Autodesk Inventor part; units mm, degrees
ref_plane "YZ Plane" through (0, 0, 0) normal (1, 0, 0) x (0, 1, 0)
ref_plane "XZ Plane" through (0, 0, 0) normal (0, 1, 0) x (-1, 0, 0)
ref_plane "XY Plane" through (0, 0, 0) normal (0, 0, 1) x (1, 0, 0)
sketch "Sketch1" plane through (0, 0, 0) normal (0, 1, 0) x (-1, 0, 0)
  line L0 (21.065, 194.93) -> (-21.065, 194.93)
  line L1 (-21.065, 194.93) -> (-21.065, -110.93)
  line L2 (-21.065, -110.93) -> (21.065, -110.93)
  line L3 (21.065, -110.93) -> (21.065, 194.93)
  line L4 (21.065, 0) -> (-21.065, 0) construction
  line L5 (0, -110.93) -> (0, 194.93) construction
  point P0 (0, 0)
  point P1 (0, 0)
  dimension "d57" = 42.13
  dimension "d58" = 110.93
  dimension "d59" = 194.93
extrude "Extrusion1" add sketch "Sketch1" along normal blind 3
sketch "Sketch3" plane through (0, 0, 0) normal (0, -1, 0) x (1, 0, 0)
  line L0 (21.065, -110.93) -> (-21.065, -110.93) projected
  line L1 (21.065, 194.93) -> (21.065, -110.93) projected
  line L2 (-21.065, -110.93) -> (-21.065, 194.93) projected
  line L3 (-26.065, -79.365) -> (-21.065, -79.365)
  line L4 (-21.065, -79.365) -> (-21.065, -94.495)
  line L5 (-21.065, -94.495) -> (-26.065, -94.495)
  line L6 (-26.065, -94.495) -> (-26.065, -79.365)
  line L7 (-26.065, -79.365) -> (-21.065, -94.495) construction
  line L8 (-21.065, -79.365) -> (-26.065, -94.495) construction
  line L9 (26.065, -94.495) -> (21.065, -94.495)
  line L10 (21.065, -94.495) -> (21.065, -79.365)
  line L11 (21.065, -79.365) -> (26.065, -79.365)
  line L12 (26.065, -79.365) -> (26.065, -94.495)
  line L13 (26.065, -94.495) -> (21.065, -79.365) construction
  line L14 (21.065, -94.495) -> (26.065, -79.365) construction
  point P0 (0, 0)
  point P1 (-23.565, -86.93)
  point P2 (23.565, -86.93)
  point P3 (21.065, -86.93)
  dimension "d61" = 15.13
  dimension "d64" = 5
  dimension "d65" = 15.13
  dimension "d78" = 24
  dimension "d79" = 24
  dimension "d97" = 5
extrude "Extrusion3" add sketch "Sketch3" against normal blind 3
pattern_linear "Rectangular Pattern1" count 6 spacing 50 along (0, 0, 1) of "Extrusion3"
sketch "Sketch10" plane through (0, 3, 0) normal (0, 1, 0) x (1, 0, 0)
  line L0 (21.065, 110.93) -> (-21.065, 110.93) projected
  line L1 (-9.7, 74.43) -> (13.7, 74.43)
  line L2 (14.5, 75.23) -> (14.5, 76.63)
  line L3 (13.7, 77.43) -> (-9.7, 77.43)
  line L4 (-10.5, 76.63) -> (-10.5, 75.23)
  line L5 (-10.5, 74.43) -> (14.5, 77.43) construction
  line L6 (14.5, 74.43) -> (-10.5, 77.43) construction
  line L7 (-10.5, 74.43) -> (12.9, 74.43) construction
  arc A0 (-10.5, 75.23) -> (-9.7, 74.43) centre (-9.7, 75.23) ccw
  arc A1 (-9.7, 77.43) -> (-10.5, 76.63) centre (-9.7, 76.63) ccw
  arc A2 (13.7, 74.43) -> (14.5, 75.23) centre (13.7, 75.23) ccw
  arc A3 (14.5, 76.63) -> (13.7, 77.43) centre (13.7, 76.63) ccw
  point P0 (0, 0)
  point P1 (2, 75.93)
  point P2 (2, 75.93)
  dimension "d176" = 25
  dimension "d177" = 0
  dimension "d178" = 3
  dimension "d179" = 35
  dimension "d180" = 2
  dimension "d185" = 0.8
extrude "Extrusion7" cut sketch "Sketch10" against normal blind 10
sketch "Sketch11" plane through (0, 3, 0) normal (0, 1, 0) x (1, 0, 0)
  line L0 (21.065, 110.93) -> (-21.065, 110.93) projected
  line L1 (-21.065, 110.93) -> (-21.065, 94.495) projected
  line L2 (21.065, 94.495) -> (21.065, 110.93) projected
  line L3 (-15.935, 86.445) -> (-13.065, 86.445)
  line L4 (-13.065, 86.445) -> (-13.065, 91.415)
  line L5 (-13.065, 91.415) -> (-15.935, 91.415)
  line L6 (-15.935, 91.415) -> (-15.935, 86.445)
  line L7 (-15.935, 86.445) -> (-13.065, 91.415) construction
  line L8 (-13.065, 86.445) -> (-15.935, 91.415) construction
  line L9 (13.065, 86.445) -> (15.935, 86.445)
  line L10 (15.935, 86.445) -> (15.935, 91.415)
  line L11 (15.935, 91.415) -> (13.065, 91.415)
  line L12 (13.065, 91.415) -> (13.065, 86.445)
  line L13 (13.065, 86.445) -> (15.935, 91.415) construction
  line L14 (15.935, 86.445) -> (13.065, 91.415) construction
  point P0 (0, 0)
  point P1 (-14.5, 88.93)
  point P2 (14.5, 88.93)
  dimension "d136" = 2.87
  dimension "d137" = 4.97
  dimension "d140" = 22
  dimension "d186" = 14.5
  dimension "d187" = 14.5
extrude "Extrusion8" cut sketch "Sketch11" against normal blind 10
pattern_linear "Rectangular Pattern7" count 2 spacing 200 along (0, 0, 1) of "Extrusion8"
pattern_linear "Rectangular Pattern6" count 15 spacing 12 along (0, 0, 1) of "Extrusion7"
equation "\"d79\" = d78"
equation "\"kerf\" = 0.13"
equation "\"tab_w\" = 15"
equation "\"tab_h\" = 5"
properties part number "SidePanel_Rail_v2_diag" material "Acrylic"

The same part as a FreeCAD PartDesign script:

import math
import FreeCAD as App
import Part
import Sketcher
Q = App.Units.Quantity

doc = App.newDocument("Part")
body = doc.addObject("PartDesign::Body", "Body")

# Sketch on XZ plane
sketch1 = body.newObject("Sketcher::SketchObject", "Sketch")
sketch1.AttachmentSupport = (doc.getObject("XZ_Plane"), [""])
sketch1.MapMode = "FlatFace"
sketch1.addGeometry(Part.LineSegment(App.Vector(-21, -111, 0), App.Vector(-21, 195, 0)), False)
sketch1.addGeometry(Part.LineSegment(App.Vector(-21, 195, 0), App.Vector(21, 195, 0)), False)
sketch1.addGeometry(Part.LineSegment(App.Vector(21, 195, 0), App.Vector(21, -111, 0)), False)
sketch1.addGeometry(Part.LineSegment(App.Vector(21, -111, 0), App.Vector(-21, -111, 0)), False)
sketch1.addConstraint(Sketcher.Constraint("Coincident", 0, 2, 1, 1))
sketch1.addConstraint(Sketcher.Constraint("Coincident", 1, 2, 2, 1))
sketch1.addConstraint(Sketcher.Constraint("Coincident", 2, 2, 3, 1))
sketch1.addConstraint(Sketcher.Constraint("Coincident", 3, 2, 0, 1))
sketch1.addConstraint(Sketcher.Constraint("Vertical", 0))
sketch1.addConstraint(Sketcher.Constraint("Horizontal", 1))
sketch1.addConstraint(Sketcher.Constraint("Vertical", 2))
sketch1.addConstraint(Sketcher.Constraint("Horizontal", 3))
sketch1.addConstraint(Sketcher.Constraint("DistanceX", 1, 1, 1, 2, Q("42.13 mm")))
sketch1.addConstraint(Sketcher.Constraint("DistanceY", -1, 1, 0, 2, Q("194.93 mm")))
sketch1.addConstraint(Sketcher.Constraint("DistanceY", 2, 2, -1, 1, Q("110.93 mm")))
sketch1.addConstraint(Sketcher.Constraint("DistanceX", 0, 2, -1, 1, Q("21.065 mm")))
pad1 = body.newObject("PartDesign::Pad", "Pad")
pad1.Profile = sketch1
pad1.Length = 3
pad1.Reversed = True

# Sketch on XZ plane
sketch2 = body.newObject("Sketcher::SketchObject", "Sketch001")
sketch2.AttachmentSupport = (doc.getObject("XZ_Plane"), [""])
sketch2.MapMode = "FlatFace"
sketch2.addGeometry(Part.LineSegment(App.Vector(-26, -94, 0), App.Vector(-21, -94, 0)), False)
sketch2.addGeometry(Part.LineSegment(App.Vector(-21, -94, 0), App.Vector(-21, -79, 0)), False)
sketch2.addGeometry(Part.LineSegment(App.Vector(-21, -79, 0), App.Vector(-26, -79, 0)), False)
sketch2.addGeometry(Part.LineSegment(App.Vector(-26, -79, 0), App.Vector(-26, -94, 0)), False)
sketch2.addGeometry(Part.LineSegment(App.Vector(21, -79, 0), App.Vector(21, -94, 0)), False)
sketch2.addGeometry(Part.LineSegment(App.Vector(21, -94, 0), App.Vector(26, -94, 0)), False)
sketch2.addGeometry(Part.LineSegment(App.Vector(26, -94, 0), App.Vector(26, -79, 0)), False)
sketch2.addGeometry(Part.LineSegment(App.Vector(26, -79, 0), App.Vector(21, -79, 0)), False)
sketch2.addConstraint(Sketcher.Constraint("Coincident", 0, 2, 1, 1))
sketch2.addConstraint(Sketcher.Constraint("Coincident", 1, 2, 2, 1))
sketch2.addConstraint(Sketcher.Constraint("Coincident", 2, 2, 3, 1))
sketch2.addConstraint(Sketcher.Constraint("Coincident", 3, 2, 0, 1))
sketch2.addConstraint(Sketcher.Constraint("Coincident", 4, 2, 5, 1))
sketch2.addConstraint(Sketcher.Constraint("Coincident", 5, 2, 6, 1))
sketch2.addConstraint(Sketcher.Constraint("Coincident", 6, 2, 7, 1))
sketch2.addConstraint(Sketcher.Constraint("Coincident", 7, 2, 4, 1))
sketch2.addConstraint(Sketcher.Constraint("Horizontal", 0))
sketch2.addConstraint(Sketcher.Constraint("Vertical", 1))
sketch2.addConstraint(Sketcher.Constraint("Horizontal", 2))
sketch2.addConstraint(Sketcher.Constraint("Vertical", 3))
sketch2.addConstraint(Sketcher.Constraint("Vertical", 4))
sketch2.addConstraint(Sketcher.Constraint("Horizontal", 5))
sketch2.addConstraint(Sketcher.Constraint("Vertical", 6))
sketch2.addConstraint(Sketcher.Constraint("Horizontal", 7))
sketch2.addConstraint(Sketcher.Constraint("Symmetric", 0, 2, 4, 2, -2))
sketch2.addConstraint(Sketcher.Constraint("Symmetric", 2, 2, 6, 2, -2))
sketch2.addConstraint(Sketcher.Constraint("DistanceX", 0, 1, 0, 2, Q("5 mm")))
sketch2.addConstraint(Sketcher.Constraint("DistanceY", 1, 1, 1, 2, Q("15.13 mm")))
sketch2.addConstraint(Sketcher.Constraint("DistanceX", 0, 2, 4, 2, Q("42.13 mm")))
sketch2.addConstraint(Sketcher.Constraint("DistanceY", 0, 2, -1, 1, Q("94.495 mm")))
pad2 = body.newObject("PartDesign::Pad", "Pad001")
pad2.Profile = sketch2
pad2.Length = 3
pad2.Reversed = True
doc.recompute()

linearpattern = body.newObject("PartDesign::LinearPattern", "LinearPattern")
linearpattern.Originals = [pad2]
linearpattern.Direction = (doc.getObject("Z_Axis"), [""])
linearpattern.Mode = "offset"
linearpattern.Offset = 50
linearpattern.Occurrences = 6
body.Tip = linearpattern

# Sketch on XZ plane
sketch3 = body.newObject("Sketcher::SketchObject", "Sketch002")
sketch3.AttachmentSupport = (doc.getObject("XZ_Plane"), [""])
sketch3.MapMode = "FlatFace"
sketch3.AttachmentOffset = App.Placement(App.Vector(0, 0, -3), App.Rotation())
sketch3.addGeometry(Part.ArcOfCircle(Part.Circle(App.Vector(-9.7, -75.2, 0), App.Vector(0, 0, 1), 0.8), math.radians(90), math.radians(180)), False)
sketch3.addGeometry(Part.LineSegment(App.Vector(-9.7, -74.4, 0), App.Vector(13.7, -74.4, 0)), False)
sketch3.addGeometry(Part.ArcOfCircle(Part.Circle(App.Vector(13.7, -75.2, 0), App.Vector(0, 0, 1), 0.8), math.radians(0), math.radians(90)), False)
sketch3.addGeometry(Part.LineSegment(App.Vector(14.5, -75.2, 0), App.Vector(14.5, -76.6, 0)), False)
sketch3.addGeometry(Part.ArcOfCircle(Part.Circle(App.Vector(13.7, -76.6, 0), App.Vector(0, 0, 1), 0.8), math.radians(-90), math.radians(0)), False)
sketch3.addGeometry(Part.LineSegment(App.Vector(13.7, -77.4, 0), App.Vector(-9.7, -77.4, 0)), False)
sketch3.addGeometry(Part.ArcOfCircle(Part.Circle(App.Vector(-9.7, -76.6, 0), App.Vector(0, 0, 1), 0.8), math.radians(180), math.radians(270)), False)
sketch3.addGeometry(Part.LineSegment(App.Vector(-10.5, -76.6, 0), App.Vector(-10.5, -75.2, 0)), False)
sketch3.addConstraint(Sketcher.Constraint("Tangent", 0, 1, 1, 1))
sketch3.addConstraint(Sketcher.Constraint("Tangent", 1, 2, 2, 2))
sketch3.addConstraint(Sketcher.Constraint("Tangent", 2, 1, 3, 1))
sketch3.addConstraint(Sketcher.Constraint("Tangent", 3, 2, 4, 2))
sketch3.addConstraint(Sketcher.Constraint("Tangent", 4, 1, 5, 1))
sketch3.addConstraint(Sketcher.Constraint("Tangent", 5, 2, 6, 2))
sketch3.addConstraint(Sketcher.Constraint("Tangent", 6, 1, 7, 1))
sketch3.addConstraint(Sketcher.Constraint("Tangent", 7, 2, 0, 2))
sketch3.addConstraint(Sketcher.Constraint("Horizontal", 1))
sketch3.addConstraint(Sketcher.Constraint("Vertical", 3))
sketch3.addConstraint(Sketcher.Constraint("Horizontal", 5))
sketch3.addConstraint(Sketcher.Constraint("Vertical", 7))
sketch3.addConstraint(Sketcher.Constraint("Equal", 0, 2))
sketch3.addConstraint(Sketcher.Constraint("Equal", 2, 4))
sketch3.addConstraint(Sketcher.Constraint("Equal", 4, 6))
sketch3.addConstraint(Sketcher.Constraint("Radius", 0, Q("0.8 mm")))
sketch3.addConstraint(Sketcher.Constraint("DistanceY", 4, 1, 1, 2, Q("3 mm")))
sketch3.addConstraint(Sketcher.Constraint("DistanceX", 1, 1, 1, 2, Q("23.4 mm")))
sketch3.addConstraint(Sketcher.Constraint("DistanceX", 0, 3, -1, 1, Q("9.7 mm")))
sketch3.addConstraint(Sketcher.Constraint("DistanceY", 0, 3, -1, 1, Q("75.23 mm")))
pocket1 = body.newObject("PartDesign::Pocket", "Pocket")
pocket1.Profile = sketch3
pocket1.Length = 10
pocket1.Reversed = True

# Sketch on XZ plane
sketch4 = body.newObject("Sketcher::SketchObject", "Sketch003")
sketch4.AttachmentSupport = (doc.getObject("XZ_Plane"), [""])
sketch4.MapMode = "FlatFace"
sketch4.AttachmentOffset = App.Placement(App.Vector(0, 0, -3), App.Rotation())
sketch4.addGeometry(Part.LineSegment(App.Vector(-15.9, -91.4, 0), App.Vector(-15.9, -86.4, 0)), False)
sketch4.addGeometry(Part.LineSegment(App.Vector(-15.9, -86.4, 0), App.Vector(-13.1, -86.4, 0)), False)
sketch4.addGeometry(Part.LineSegment(App.Vector(-13.1, -86.4, 0), App.Vector(-13.1, -91.4, 0)), False)
sketch4.addGeometry(Part.LineSegment(App.Vector(-13.1, -91.4, 0), App.Vector(-15.9, -91.4, 0)), False)
sketch4.addGeometry(Part.LineSegment(App.Vector(13.1, -91.4, 0), App.Vector(13.1, -86.4, 0)), False)
sketch4.addGeometry(Part.LineSegment(App.Vector(13.1, -86.4, 0), App.Vector(15.9, -86.4, 0)), False)
sketch4.addGeometry(Part.LineSegment(App.Vector(15.9, -86.4, 0), App.Vector(15.9, -91.4, 0)), False)
sketch4.addGeometry(Part.LineSegment(App.Vector(15.9, -91.4, 0), App.Vector(13.1, -91.4, 0)), False)
sketch4.addConstraint(Sketcher.Constraint("Coincident", 0, 2, 1, 1))
sketch4.addConstraint(Sketcher.Constraint("Coincident", 1, 2, 2, 1))
sketch4.addConstraint(Sketcher.Constraint("Coincident", 2, 2, 3, 1))
sketch4.addConstraint(Sketcher.Constraint("Coincident", 3, 2, 0, 1))
sketch4.addConstraint(Sketcher.Constraint("Coincident", 4, 2, 5, 1))
sketch4.addConstraint(Sketcher.Constraint("Coincident", 5, 2, 6, 1))
sketch4.addConstraint(Sketcher.Constraint("Coincident", 6, 2, 7, 1))
sketch4.addConstraint(Sketcher.Constraint("Coincident", 7, 2, 4, 1))
sketch4.addConstraint(Sketcher.Constraint("Vertical", 0))
sketch4.addConstraint(Sketcher.Constraint("Horizontal", 1))
sketch4.addConstraint(Sketcher.Constraint("Vertical", 2))
sketch4.addConstraint(Sketcher.Constraint("Horizontal", 3))
sketch4.addConstraint(Sketcher.Constraint("Vertical", 4))
sketch4.addConstraint(Sketcher.Constraint("Horizontal", 5))
sketch4.addConstraint(Sketcher.Constraint("Vertical", 6))
sketch4.addConstraint(Sketcher.Constraint("Horizontal", 7))
sketch4.addConstraint(Sketcher.Constraint("Symmetric", 1, 2, 4, 2, -2))
sketch4.addConstraint(Sketcher.Constraint("Symmetric", 3, 2, 6, 2, -2))
sketch4.addConstraint(Sketcher.Constraint("DistanceX", 1, 1, 1, 2, Q("2.87 mm")))
sketch4.addConstraint(Sketcher.Constraint("DistanceY", 0, 1, 0, 2, Q("4.97 mm")))
sketch4.addConstraint(Sketcher.Constraint("DistanceX", 0, 2, 4, 2, Q("29 mm")))
sketch4.addConstraint(Sketcher.Constraint("DistanceY", 0, 2, -1, 1, Q("86.445 mm")))
pocket2 = body.newObject("PartDesign::Pocket", "Pocket001")
pocket2.Profile = sketch4
pocket2.Length = 10
pocket2.Reversed = True
doc.recompute()

linearpattern2 = body.newObject("PartDesign::LinearPattern", "LinearPattern001")
linearpattern2.Originals = [pocket2]
linearpattern2.Direction = (doc.getObject("Z_Axis"), [""])
linearpattern2.Mode = "offset"
linearpattern2.Offset = 200
linearpattern2.Occurrences = 2
body.Tip = linearpattern2
doc.recompute()

linearpattern3 = body.newObject("PartDesign::LinearPattern", "LinearPattern002")
linearpattern3.Originals = [pocket1]
linearpattern3.Direction = (doc.getObject("Z_Axis"), [""])
linearpattern3.Mode = "offset"
linearpattern3.Offset = 12
linearpattern3.Occurrences = 15
body.Tip = linearpattern3

doc.recompute()
